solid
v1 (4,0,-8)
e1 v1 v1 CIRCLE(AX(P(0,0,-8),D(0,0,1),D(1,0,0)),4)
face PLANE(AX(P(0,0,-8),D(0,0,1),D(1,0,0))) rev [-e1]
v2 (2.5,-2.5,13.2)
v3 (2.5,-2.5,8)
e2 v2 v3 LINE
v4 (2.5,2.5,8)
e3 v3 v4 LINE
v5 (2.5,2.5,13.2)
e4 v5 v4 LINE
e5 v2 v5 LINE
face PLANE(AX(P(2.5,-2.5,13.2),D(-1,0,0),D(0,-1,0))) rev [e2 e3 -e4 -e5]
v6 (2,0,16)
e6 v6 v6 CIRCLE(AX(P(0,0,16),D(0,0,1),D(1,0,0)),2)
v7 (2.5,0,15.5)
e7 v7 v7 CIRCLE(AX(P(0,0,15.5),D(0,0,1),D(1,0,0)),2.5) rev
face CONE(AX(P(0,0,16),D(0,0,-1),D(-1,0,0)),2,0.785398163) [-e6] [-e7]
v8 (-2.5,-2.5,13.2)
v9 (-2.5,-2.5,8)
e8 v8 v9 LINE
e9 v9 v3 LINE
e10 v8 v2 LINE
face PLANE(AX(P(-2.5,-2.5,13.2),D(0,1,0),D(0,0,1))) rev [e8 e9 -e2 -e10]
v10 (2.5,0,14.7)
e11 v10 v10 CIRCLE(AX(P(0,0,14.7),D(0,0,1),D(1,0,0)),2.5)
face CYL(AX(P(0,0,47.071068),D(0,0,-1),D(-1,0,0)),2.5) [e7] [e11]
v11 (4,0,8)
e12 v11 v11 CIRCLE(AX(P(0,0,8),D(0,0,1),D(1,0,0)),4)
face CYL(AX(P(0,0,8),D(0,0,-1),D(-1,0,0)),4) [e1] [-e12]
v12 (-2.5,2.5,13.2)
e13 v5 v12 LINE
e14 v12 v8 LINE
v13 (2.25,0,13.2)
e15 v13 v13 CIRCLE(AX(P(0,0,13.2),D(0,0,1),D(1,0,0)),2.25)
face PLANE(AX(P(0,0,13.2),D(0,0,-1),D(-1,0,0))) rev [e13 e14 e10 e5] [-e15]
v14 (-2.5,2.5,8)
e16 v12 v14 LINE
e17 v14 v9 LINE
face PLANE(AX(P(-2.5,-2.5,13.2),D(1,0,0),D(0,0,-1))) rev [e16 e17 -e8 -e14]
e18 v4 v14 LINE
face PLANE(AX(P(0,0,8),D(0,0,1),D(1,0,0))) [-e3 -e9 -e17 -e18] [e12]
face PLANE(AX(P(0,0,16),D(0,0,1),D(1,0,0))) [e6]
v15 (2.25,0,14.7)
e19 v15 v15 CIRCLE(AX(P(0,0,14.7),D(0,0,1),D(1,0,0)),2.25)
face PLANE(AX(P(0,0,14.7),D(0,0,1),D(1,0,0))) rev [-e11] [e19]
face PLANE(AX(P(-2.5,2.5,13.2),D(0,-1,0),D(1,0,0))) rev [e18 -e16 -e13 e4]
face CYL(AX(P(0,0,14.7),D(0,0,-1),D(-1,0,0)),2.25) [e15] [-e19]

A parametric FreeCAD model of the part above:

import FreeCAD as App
import Part
import Sketcher
Q = App.Units.Quantity


def edges_at(feature, points):
    """Names of the edges that pass closest to the given points."""
    edges = feature.Shape.Edges
    near = lambda p: min(range(len(edges)), key=lambda i: edges[i].distToShape(Part.Vertex(*p))[0])
    return sorted({f"Edge{near(p) + 1}" for p in points})

doc = App.newDocument("Part")
params = doc.addObject("Spreadsheet::Sheet", "Params")
for row, (alias, value) in enumerate([
    ("sketch1_diameter", "8 mm"),
    ("pad1_length", "16 mm"),
    ("sketch2_width", "5 mm"),
    ("pad2_length", "5.2 mm"),
    ("sketch3_diameter", "5 mm"),
    ("pad3_length", "2.8 mm"),
    ("sketch4_diameter", "4.5 mm"),
    ("pocket1_length", "1.5 mm"),
    ("chamfer_size", "0.5 mm"),
], start=1):
    params.set(f"A{row}", alias)
    params.set(f"B{row}", "=" + value)
    params.setAlias(f"B{row}", alias)

body = doc.addObject("PartDesign::Body", "Body")

sketch1 = doc.addObject("Sketcher::SketchObject", "Sketch")
body.addObject(sketch1)
sketch1.AttachmentSupport = (doc.XY_Plane, [""])
sketch1.MapMode = "FlatFace"
sketch1.addGeometry(Part.Circle(App.Vector(0, 0, 0), App.Vector(0, 0, 1), 4), False)
sketch1.addConstraint([
    Sketcher.Constraint("Coincident", 0, 3, -1, 1),
    Sketcher.Constraint("Diameter", 0, Q("8 mm")),
])
sketch1.setExpression("Constraints[1]", "Params.sketch1_diameter")
pad1 = doc.addObject("PartDesign::Pad", "Pad")
body.addObject(pad1)
pad1.Profile = sketch1
pad1.setExpression("Length", "Params.pad1_length")
pad1.Midplane = True

sketch2 = doc.addObject("Sketcher::SketchObject", "Sketch001")
body.addObject(sketch2)
sketch2.AttachmentSupport = (doc.XY_Plane, [""])
sketch2.MapMode = "FlatFace"
sketch2.AttachmentOffset = App.Placement(App.Vector(0, 0, 8), App.Rotation())
sketch2.addGeometry([
    Part.LineSegment(App.Vector(-2, 2, 0), App.Vector(-2, -2, 0)),
    Part.LineSegment(App.Vector(-2, -2, 0), App.Vector(2, -2, 0)),
    Part.LineSegment(App.Vector(2, -2, 0), App.Vector(2, 2, 0)),
    Part.LineSegment(App.Vector(2, 2, 0), App.Vector(-2, 2, 0)),
], False)
sketch2.addConstraint([
    Sketcher.Constraint("Coincident", 0, 2, 1, 1),
    Sketcher.Constraint("Coincident", 1, 2, 2, 1),
    Sketcher.Constraint("Coincident", 2, 2, 3, 1),
    Sketcher.Constraint("Coincident", 3, 2, 0, 1),
    Sketcher.Constraint("Vertical", 0),
    Sketcher.Constraint("Horizontal", 1),
    Sketcher.Constraint("Vertical", 2),
    Sketcher.Constraint("Horizontal", 3),
    Sketcher.Constraint("Symmetric", 0, 2, 2, 2, -1, 1),
    Sketcher.Constraint("Equal", 3, 0),
    Sketcher.Constraint("DistanceX", 1, 1, 1, 2, Q("5 mm")),
])
sketch2.setExpression("Constraints[10]", "Params.sketch2_width")
pad2 = doc.addObject("PartDesign::Pad", "Pad001")
body.addObject(pad2)
pad2.Profile = sketch2
pad2.setExpression("Length", "Params.pad2_length")

sketch3 = doc.addObject("Sketcher::SketchObject", "Sketch002")
body.addObject(sketch3)
sketch3.AttachmentSupport = (doc.XY_Plane, [""])
sketch3.MapMode = "FlatFace"
sketch3.AttachmentOffset = App.Placement(App.Vector(0, 0, 13.2), App.Rotation())
sketch3.addGeometry(Part.Circle(App.Vector(0, 0, 0), App.Vector(0, 0, 1), 2.5), False)
sketch3.addConstraint([
    Sketcher.Constraint("Coincident", 0, 3, -1, 1),
    Sketcher.Constraint("Diameter", 0, Q("5 mm")),
])
sketch3.setExpression("Constraints[1]", "Params.sketch3_diameter")
pad3 = doc.addObject("PartDesign::Pad", "Pad002")
body.addObject(pad3)
pad3.Profile = sketch3
pad3.setExpression("Length", "Params.pad3_length")

sketch4 = doc.addObject("Sketcher::SketchObject", "Sketch003")
body.addObject(sketch4)
sketch4.AttachmentSupport = (doc.XY_Plane, [""])
sketch4.MapMode = "FlatFace"
sketch4.AttachmentOffset = App.Placement(App.Vector(0, 0, 13.2), App.Rotation())
sketch4.addGeometry([
    Part.LineSegment(App.Vector(-7.7, 7.7, 0), App.Vector(-7.7, -7.7, 0)),
    Part.LineSegment(App.Vector(-7.7, -7.7, 0), App.Vector(7.7, -7.7, 0)),
    Part.LineSegment(App.Vector(7.7, -7.7, 0), App.Vector(7.7, 7.7, 0)),
    Part.LineSegment(App.Vector(7.7, 7.7, 0), App.Vector(-7.7, 7.7, 0)),
    Part.Circle(App.Vector(0, 0, 0), App.Vector(0, 0, 1), 2.2),
], False)
sketch4.addConstraint([
    Sketcher.Constraint("Coincident", 0, 2, 1, 1),
    Sketcher.Constraint("Coincident", 1, 2, 2, 1),
    Sketcher.Constraint("Coincident", 2, 2, 3, 1),
    Sketcher.Constraint("Coincident", 3, 2, 0, 1),
    Sketcher.Constraint("Vertical", 0),
    Sketcher.Constraint("Horizontal", 1),
    Sketcher.Constraint("Vertical", 2),
    Sketcher.Constraint("Horizontal", 3),
    Sketcher.Constraint("Coincident", 4, 3, -1, 1),
    Sketcher.Constraint("Symmetric", 0, 2, 2, 2, -1, 1),
    Sketcher.Constraint("Equal", 3, 0),
    Sketcher.Constraint("Diameter", 4, Q("4.5 mm")),
    Sketcher.Constraint("DistanceX", 1, 1, 1, 2, Q("15.306 mm")),
])
sketch4.setExpression("Constraints[11]", "Params.sketch4_diameter")
pocket1 = doc.addObject("PartDesign::Pocket", "Pocket")
body.addObject(pocket1)
pocket1.Profile = sketch4
pocket1.setExpression("Length", "Params.pocket1_length")
pocket1.Reversed = True
doc.recompute()

chamfer = doc.addObject("PartDesign::Chamfer", "Chamfer")
body.addObject(chamfer)
chamfer.Base = (pocket1, edges_at(pocket1, [(-2.5, 0, 16)]))
chamfer.setExpression("Size", "Params.chamfer_size")

doc.recompute()
